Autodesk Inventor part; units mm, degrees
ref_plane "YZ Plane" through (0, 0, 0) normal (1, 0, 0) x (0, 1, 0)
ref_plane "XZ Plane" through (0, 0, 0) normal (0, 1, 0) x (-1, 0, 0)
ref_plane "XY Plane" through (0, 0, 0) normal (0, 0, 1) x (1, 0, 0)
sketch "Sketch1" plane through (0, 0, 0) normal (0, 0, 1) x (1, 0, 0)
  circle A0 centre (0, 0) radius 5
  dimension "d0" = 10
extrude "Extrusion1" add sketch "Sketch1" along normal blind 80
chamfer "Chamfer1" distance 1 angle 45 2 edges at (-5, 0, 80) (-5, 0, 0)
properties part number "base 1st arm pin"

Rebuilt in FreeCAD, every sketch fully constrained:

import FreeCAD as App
import Part
import Sketcher

V = App.Vector
Q = App.Units.Quantity


def edges_at(feature, points):
    """Names of the edges that pass closest to the given points."""
    edges = feature.Shape.Edges
    near = lambda p: min(range(len(edges)), key=lambda i: edges[i].distToShape(Part.Vertex(*p))[0])
    return sorted({f"Edge{near(p) + 1}" for p in points})

doc = App.newDocument("Part")
body = doc.addObject("PartDesign::Body", "Body")

# Sketch on XY plane
sketch1 = body.newObject("Sketcher::SketchObject", "Sketch")
sketch1.AttachmentSupport = (doc.getObject("XY_Plane"), [""])
sketch1.MapMode = "FlatFace"
sketch1.addGeometry(Part.Circle(V(0, 0, 0), V(0, 0, 1), 5), False)
sketch1.addConstraint(Sketcher.Constraint("Coincident", 0, 3, -1, 1))
sketch1.addConstraint(Sketcher.Constraint("Diameter", 0, Q("10 mm")))
pad1 = body.newObject("PartDesign::Pad", "Pad")
pad1.Profile = sketch1
pad1.Length = 80
doc.recompute()

chamfer = body.newObject("PartDesign::Chamfer", "Chamfer")
chamfer.Base = (pad1, edges_at(pad1, [(-5, 0, 80), (-5, 0, 0)]))
chamfer.Size = 1

doc.recompute()
